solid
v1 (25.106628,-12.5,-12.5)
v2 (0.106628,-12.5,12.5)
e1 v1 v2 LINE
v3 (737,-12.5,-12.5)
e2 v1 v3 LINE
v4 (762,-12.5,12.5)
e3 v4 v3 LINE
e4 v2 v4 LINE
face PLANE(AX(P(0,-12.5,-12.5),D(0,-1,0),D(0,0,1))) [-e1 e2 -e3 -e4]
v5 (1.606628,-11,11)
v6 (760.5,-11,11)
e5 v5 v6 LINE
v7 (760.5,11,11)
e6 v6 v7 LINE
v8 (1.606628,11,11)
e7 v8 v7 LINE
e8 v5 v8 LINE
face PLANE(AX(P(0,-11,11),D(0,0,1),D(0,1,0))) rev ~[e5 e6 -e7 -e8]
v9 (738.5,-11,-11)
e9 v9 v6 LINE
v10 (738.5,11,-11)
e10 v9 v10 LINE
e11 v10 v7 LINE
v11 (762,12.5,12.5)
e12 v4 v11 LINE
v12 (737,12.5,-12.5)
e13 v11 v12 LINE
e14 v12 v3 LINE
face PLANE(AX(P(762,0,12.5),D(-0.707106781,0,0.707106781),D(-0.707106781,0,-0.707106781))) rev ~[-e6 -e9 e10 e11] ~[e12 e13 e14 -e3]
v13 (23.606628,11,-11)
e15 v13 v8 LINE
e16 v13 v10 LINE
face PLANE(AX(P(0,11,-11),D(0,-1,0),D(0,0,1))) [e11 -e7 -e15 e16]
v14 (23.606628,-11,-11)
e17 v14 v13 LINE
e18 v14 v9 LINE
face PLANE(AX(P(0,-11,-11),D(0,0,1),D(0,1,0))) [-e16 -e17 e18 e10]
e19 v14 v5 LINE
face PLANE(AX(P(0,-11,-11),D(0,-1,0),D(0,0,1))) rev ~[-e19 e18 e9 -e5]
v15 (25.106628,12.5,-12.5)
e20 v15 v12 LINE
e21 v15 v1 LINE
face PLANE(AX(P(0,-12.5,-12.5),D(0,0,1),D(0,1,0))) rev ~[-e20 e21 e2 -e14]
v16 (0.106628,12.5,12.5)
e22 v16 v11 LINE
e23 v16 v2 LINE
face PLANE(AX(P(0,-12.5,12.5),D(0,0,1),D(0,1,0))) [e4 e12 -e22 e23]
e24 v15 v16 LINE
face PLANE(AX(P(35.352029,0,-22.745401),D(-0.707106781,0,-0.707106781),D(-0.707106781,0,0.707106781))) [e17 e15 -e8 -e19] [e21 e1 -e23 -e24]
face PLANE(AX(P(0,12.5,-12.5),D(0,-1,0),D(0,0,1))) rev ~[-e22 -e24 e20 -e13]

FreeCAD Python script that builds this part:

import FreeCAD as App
import Part
import Sketcher
from FreeCAD import Vector
Q = App.Units.Quantity

doc = App.newDocument("Part")
body = doc.addObject("PartDesign::Body", "Body")

sketch1 = doc.addObject("Sketcher::SketchObject", "Sketch")
body.addObject(sketch1)
sketch1.AttachmentSupport = (doc.YZ_Plane, [""])
sketch1.MapMode = "FlatFace"
sketch1.addGeometry([
    Part.LineSegment(Vector(-12, 12, 0), Vector(-12, -12, 0)),
    Part.LineSegment(Vector(-12, -12, 0), Vector(12, -12, 0)),
    Part.LineSegment(Vector(12, -12, 0), Vector(12, 12, 0)),
    Part.LineSegment(Vector(12, 12, 0), Vector(-12, 12, 0)),
], False)
sketch1.addConstraint([
    Sketcher.Constraint("Coincident", 0, 2, 1, 1),
    Sketcher.Constraint("Coincident", 1, 2, 2, 1),
    Sketcher.Constraint("Coincident", 2, 2, 3, 1),
    Sketcher.Constraint("Coincident", 3, 2, 0, 1),
    Sketcher.Constraint("Vertical", 0),
    Sketcher.Constraint("Horizontal", 1),
    Sketcher.Constraint("Vertical", 2),
    Sketcher.Constraint("Horizontal", 3),
    Sketcher.Constraint("Symmetric", 0, 2, 2, 2, -1, 1),
    Sketcher.Constraint("Equal", 3, 0),
    Sketcher.Constraint("DistanceX", 1, 1, 1, 2, 25.0),
])
pad1 = doc.addObject("PartDesign::Pad", "Pad")
body.addObject(pad1)
pad1.Profile = sketch1
pad1.Length = 762

sketch2 = doc.addObject("Sketcher::SketchObject", "Sketch001")
body.addObject(sketch2)
sketch2.AttachmentSupport = (doc.XZ_Plane, [""])
sketch2.MapMode = "FlatFace"
sketch2.addGeometry([
    Part.LineSegment(Vector(35, -23, 0), Vector(0, 13, 0)),
    Part.LineSegment(Vector(0, 13, 0), Vector(0, -27, 0)),
    Part.LineSegment(Vector(0, -27, 0), Vector(35, -23, 0)),
    Part.LineSegment(Vector(762, -23, 0), Vector(762, 12, 0)),
    Part.LineSegment(Vector(762, 12, 0), Vector(733, -17, 0)),
    Part.LineSegment(Vector(733, -17, 0), Vector(762, -23, 0)),
], False)
sketch2.addConstraint([
    Sketcher.Constraint("Coincident", 0, 2, 1, 1),
    Sketcher.Constraint("Coincident", 1, 2, 2, 1),
    Sketcher.Constraint("Coincident", 2, 2, 0, 1),
    Sketcher.Constraint("Coincident", 3, 2, 4, 1),
    Sketcher.Constraint("Coincident", 4, 2, 5, 1),
    Sketcher.Constraint("Coincident", 5, 2, 3, 1),
    Sketcher.Constraint("Vertical", 1),
    Sketcher.Constraint("Vertical", 3),
    Sketcher.Constraint("PointOnObject", 0, 2, -2),
    Sketcher.Constraint("Perpendicular", 0, 4),
    Sketcher.Constraint("Horizontal", 2, 2, 5, 2),
    Sketcher.Constraint("Angle", 0, Q("135 deg")),
    Sketcher.Constraint("DistanceX", -1, 1, 3, 2, 762.0),
    Sketcher.Constraint("DistanceY", -1, 1, 3, 2, 12.5),
    Sketcher.Constraint("DistanceY", 3, 1, 3, 2, 35.245401),
    Sketcher.Constraint("DistanceX", 2, 2, 4, 2, 697.285001),
    Sketcher.Constraint("Distance", 0, 49.995319),
    Sketcher.Constraint("Distance", 2, 35.571061),
])
pocket1 = doc.addObject("PartDesign::Pocket", "Pocket")
body.addObject(pocket1)
pocket1.Profile = sketch2
pocket1.Length = 25
pocket1.Midplane = True

sketch3 = doc.addObject("Sketcher::SketchObject", "Sketch002")
body.addObject(sketch3)
sketch3.AttachmentSupport = (doc.YZ_Plane, [""])
sketch3.MapMode = "FlatFace"
sketch3.addGeometry([
    Part.LineSegment(Vector(-11, 11, 0), Vector(-11, -11, 0)),
    Part.LineSegment(Vector(-11, -11, 0), Vector(11, -11, 0)),
    Part.LineSegment(Vector(11, -11, 0), Vector(11, 11, 0)),
    Part.LineSegment(Vector(11, 11, 0), Vector(-11, 11, 0)),
], False)
sketch3.addConstraint([
    Sketcher.Constraint("Coincident", 0, 2, 1, 1),
    Sketcher.Constraint("Coincident", 1, 2, 2, 1),
    Sketcher.Constraint("Coincident", 2, 2, 3, 1),
    Sketcher.Constraint("Coincident", 3, 2, 0, 1),
    Sketcher.Constraint("Vertical", 0),
    Sketcher.Constraint("Horizontal", 1),
    Sketcher.Constraint("Vertical", 2),
    Sketcher.Constraint("Horizontal", 3),
    Sketcher.Constraint("Symmetric", 0, 2, 2, 2, -1, 1),
    Sketcher.Constraint("Equal", 3, 0),
    Sketcher.Constraint("DistanceX", 1, 1, 1, 2, 22.0),
])
pocket2 = doc.addObject("PartDesign::Pocket", "Pocket001")
body.addObject(pocket2)
pocket2.Profile = sketch3
pocket2.Type = "ThroughAll"
pocket2.Reversed = True

doc.recompute()
